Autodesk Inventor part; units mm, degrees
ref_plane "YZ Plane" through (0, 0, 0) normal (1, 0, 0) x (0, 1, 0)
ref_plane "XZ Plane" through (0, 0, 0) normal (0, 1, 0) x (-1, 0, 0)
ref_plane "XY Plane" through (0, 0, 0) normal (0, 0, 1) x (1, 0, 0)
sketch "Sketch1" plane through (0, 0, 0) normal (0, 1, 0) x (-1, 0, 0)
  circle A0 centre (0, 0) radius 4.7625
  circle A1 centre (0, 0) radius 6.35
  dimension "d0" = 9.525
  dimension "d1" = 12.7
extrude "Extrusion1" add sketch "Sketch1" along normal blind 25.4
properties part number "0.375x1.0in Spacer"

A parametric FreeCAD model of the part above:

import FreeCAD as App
import Part
import Sketcher
Q = App.Units.Quantity

doc = App.newDocument("Part")
params = doc.addObject("Spreadsheet::Sheet", "Params")
for row, (alias, value) in enumerate([
    ("sketch1_diameter", "0.5 in"),
    ("sketch1_diameter2", "0.375 in"),
    ("pad1_length", "1 in"),
], start=1):
    params.set(f"A{row}", alias)
    params.set(f"B{row}", "=" + value)
    params.setAlias(f"B{row}", alias)

body = doc.addObject("PartDesign::Body", "Body")

sketch1 = doc.addObject("Sketcher::SketchObject", "Sketch")
body.addObject(sketch1)
sketch1.AttachmentSupport = (doc.XZ_Plane, [""])
sketch1.MapMode = "FlatFace"
sketch1.addGeometry(Part.Circle(App.Vector(0, 0, 0), App.Vector(0, 0, 1), 6.3), False)
sketch1.addGeometry(Part.Circle(App.Vector(0, 0, 0), App.Vector(0, 0, 1), 4.8), False)
sketch1.addConstraint(Sketcher.Constraint("Coincident", 0, 3, -1, 1))
sketch1.addConstraint(Sketcher.Constraint("Coincident", 1, 3, -1, 1))
sketch1.addConstraint(Sketcher.Constraint("Diameter", 0, Q("0.5 in")))
sketch1.addConstraint(Sketcher.Constraint("Diameter", 1, Q("0.375 in")))
sketch1.setExpression("Constraints[2]", "Params.sketch1_diameter")
sketch1.setExpression("Constraints[3]", "Params.sketch1_diameter2")
pad1 = doc.addObject("PartDesign::Pad", "Pad")
body.addObject(pad1)
pad1.Profile = sketch1
pad1.setExpression("Length", "Params.pad1_length")
pad1.Reversed = True

doc.recompute()
